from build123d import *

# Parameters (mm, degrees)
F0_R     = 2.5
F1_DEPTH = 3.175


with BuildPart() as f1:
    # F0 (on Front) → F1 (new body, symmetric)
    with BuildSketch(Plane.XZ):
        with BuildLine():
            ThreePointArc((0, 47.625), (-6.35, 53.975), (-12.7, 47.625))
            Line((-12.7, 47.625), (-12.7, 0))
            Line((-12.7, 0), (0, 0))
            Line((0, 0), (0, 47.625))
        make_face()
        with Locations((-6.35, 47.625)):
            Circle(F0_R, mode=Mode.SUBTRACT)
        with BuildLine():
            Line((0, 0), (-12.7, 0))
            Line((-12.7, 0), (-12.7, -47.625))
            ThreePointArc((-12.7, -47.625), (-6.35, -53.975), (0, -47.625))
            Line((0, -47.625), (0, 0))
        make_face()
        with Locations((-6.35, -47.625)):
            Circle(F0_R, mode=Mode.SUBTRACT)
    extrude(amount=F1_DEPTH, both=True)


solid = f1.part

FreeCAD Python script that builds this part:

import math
import FreeCAD as App
import Part
import Sketcher
Q = App.Units.Quantity

doc = App.newDocument("Part")
params = doc.addObject("Spreadsheet::Sheet", "Params")
for row, (alias, value) in enumerate([
    ("sketch1_radius", "0.25 in"),
    ("sketch1_height", "3.75 in"),
    ("pad1_length", "0.25 in"),
], start=1):
    params.set(f"A{row}", alias)
    params.set(f"B{row}", "=" + value)
    params.setAlias(f"B{row}", alias)

body = doc.addObject("PartDesign::Body", "Body")

# Sketch on XZ plane
sketch1 = doc.addObject("Sketcher::SketchObject", "Sketch")
body.addObject(sketch1)
sketch1.AttachmentSupport = (doc.XZ_Plane, [""])
sketch1.MapMode = "FlatFace"
sketch1.addGeometry(Part.ArcOfCircle(Part.Circle(App.Vector(-6.3, 47.6, 0), App.Vector(0, 0, 1), 6.3), math.radians(0), math.radians(180)), False)
sketch1.addGeometry(Part.LineSegment(App.Vector(-12.7, 47.6, 0), App.Vector(-12.7, -47.6, 0)), False)
sketch1.addGeometry(Part.ArcOfCircle(Part.Circle(App.Vector(-6.3, -47.6, 0), App.Vector(0, 0, 1), 6.3), math.radians(180), math.radians(360)), False)
sketch1.addGeometry(Part.LineSegment(App.Vector(0, -47.6, 0), App.Vector(0, 47.6, 0)), False)
sketch1.addGeometry(Part.Circle(App.Vector(-6.3, -47.6, 0), App.Vector(0, 0, 1), 2.5), False)
sketch1.addGeometry(Part.Circle(App.Vector(-6.3, 47.6, 0), App.Vector(0, 0, 1), 2.5), False)
sketch1.addConstraint(Sketcher.Constraint("Tangent", 0, 2, 1, 1))
sketch1.addConstraint(Sketcher.Constraint("Tangent", 1, 2, 2, 1))
sketch1.addConstraint(Sketcher.Constraint("Tangent", 2, 2, 3, 1))
sketch1.addConstraint(Sketcher.Constraint("Tangent", 3, 2, 0, 1))
sketch1.addConstraint(Sketcher.Constraint("Vertical", 1))
sketch1.addConstraint(Sketcher.Constraint("Vertical", 3))
sketch1.addConstraint(Sketcher.Constraint("Coincident", 4, 3, 2, 3))
sketch1.addConstraint(Sketcher.Constraint("Coincident", 5, 3, 0, 3))
sketch1.addConstraint(Sketcher.Constraint("Equal", 4, 5))
sketch1.addConstraint(Sketcher.Constraint("Symmetric", 2, 2, 3, 2, -1, 1))
sketch1.addConstraint(Sketcher.Constraint("Radius", 0, Q("0.25 in")))
sketch1.addConstraint(Sketcher.Constraint("DistanceY", 1, 2, 1, 1, Q("3.75 in")))
sketch1.addConstraint(Sketcher.Constraint("Diameter", 4, Q("5 mm")))
sketch1.setExpression("Constraints[10]", "Params.sketch1_radius")
sketch1.setExpression("Constraints[11]", "Params.sketch1_height")
pad1 = doc.addObject("PartDesign::Pad", "Pad")
body.addObject(pad1)
pad1.Profile = sketch1
pad1.setExpression("Length", "Params.pad1_length")
pad1.Midplane = True

doc.recompute()
